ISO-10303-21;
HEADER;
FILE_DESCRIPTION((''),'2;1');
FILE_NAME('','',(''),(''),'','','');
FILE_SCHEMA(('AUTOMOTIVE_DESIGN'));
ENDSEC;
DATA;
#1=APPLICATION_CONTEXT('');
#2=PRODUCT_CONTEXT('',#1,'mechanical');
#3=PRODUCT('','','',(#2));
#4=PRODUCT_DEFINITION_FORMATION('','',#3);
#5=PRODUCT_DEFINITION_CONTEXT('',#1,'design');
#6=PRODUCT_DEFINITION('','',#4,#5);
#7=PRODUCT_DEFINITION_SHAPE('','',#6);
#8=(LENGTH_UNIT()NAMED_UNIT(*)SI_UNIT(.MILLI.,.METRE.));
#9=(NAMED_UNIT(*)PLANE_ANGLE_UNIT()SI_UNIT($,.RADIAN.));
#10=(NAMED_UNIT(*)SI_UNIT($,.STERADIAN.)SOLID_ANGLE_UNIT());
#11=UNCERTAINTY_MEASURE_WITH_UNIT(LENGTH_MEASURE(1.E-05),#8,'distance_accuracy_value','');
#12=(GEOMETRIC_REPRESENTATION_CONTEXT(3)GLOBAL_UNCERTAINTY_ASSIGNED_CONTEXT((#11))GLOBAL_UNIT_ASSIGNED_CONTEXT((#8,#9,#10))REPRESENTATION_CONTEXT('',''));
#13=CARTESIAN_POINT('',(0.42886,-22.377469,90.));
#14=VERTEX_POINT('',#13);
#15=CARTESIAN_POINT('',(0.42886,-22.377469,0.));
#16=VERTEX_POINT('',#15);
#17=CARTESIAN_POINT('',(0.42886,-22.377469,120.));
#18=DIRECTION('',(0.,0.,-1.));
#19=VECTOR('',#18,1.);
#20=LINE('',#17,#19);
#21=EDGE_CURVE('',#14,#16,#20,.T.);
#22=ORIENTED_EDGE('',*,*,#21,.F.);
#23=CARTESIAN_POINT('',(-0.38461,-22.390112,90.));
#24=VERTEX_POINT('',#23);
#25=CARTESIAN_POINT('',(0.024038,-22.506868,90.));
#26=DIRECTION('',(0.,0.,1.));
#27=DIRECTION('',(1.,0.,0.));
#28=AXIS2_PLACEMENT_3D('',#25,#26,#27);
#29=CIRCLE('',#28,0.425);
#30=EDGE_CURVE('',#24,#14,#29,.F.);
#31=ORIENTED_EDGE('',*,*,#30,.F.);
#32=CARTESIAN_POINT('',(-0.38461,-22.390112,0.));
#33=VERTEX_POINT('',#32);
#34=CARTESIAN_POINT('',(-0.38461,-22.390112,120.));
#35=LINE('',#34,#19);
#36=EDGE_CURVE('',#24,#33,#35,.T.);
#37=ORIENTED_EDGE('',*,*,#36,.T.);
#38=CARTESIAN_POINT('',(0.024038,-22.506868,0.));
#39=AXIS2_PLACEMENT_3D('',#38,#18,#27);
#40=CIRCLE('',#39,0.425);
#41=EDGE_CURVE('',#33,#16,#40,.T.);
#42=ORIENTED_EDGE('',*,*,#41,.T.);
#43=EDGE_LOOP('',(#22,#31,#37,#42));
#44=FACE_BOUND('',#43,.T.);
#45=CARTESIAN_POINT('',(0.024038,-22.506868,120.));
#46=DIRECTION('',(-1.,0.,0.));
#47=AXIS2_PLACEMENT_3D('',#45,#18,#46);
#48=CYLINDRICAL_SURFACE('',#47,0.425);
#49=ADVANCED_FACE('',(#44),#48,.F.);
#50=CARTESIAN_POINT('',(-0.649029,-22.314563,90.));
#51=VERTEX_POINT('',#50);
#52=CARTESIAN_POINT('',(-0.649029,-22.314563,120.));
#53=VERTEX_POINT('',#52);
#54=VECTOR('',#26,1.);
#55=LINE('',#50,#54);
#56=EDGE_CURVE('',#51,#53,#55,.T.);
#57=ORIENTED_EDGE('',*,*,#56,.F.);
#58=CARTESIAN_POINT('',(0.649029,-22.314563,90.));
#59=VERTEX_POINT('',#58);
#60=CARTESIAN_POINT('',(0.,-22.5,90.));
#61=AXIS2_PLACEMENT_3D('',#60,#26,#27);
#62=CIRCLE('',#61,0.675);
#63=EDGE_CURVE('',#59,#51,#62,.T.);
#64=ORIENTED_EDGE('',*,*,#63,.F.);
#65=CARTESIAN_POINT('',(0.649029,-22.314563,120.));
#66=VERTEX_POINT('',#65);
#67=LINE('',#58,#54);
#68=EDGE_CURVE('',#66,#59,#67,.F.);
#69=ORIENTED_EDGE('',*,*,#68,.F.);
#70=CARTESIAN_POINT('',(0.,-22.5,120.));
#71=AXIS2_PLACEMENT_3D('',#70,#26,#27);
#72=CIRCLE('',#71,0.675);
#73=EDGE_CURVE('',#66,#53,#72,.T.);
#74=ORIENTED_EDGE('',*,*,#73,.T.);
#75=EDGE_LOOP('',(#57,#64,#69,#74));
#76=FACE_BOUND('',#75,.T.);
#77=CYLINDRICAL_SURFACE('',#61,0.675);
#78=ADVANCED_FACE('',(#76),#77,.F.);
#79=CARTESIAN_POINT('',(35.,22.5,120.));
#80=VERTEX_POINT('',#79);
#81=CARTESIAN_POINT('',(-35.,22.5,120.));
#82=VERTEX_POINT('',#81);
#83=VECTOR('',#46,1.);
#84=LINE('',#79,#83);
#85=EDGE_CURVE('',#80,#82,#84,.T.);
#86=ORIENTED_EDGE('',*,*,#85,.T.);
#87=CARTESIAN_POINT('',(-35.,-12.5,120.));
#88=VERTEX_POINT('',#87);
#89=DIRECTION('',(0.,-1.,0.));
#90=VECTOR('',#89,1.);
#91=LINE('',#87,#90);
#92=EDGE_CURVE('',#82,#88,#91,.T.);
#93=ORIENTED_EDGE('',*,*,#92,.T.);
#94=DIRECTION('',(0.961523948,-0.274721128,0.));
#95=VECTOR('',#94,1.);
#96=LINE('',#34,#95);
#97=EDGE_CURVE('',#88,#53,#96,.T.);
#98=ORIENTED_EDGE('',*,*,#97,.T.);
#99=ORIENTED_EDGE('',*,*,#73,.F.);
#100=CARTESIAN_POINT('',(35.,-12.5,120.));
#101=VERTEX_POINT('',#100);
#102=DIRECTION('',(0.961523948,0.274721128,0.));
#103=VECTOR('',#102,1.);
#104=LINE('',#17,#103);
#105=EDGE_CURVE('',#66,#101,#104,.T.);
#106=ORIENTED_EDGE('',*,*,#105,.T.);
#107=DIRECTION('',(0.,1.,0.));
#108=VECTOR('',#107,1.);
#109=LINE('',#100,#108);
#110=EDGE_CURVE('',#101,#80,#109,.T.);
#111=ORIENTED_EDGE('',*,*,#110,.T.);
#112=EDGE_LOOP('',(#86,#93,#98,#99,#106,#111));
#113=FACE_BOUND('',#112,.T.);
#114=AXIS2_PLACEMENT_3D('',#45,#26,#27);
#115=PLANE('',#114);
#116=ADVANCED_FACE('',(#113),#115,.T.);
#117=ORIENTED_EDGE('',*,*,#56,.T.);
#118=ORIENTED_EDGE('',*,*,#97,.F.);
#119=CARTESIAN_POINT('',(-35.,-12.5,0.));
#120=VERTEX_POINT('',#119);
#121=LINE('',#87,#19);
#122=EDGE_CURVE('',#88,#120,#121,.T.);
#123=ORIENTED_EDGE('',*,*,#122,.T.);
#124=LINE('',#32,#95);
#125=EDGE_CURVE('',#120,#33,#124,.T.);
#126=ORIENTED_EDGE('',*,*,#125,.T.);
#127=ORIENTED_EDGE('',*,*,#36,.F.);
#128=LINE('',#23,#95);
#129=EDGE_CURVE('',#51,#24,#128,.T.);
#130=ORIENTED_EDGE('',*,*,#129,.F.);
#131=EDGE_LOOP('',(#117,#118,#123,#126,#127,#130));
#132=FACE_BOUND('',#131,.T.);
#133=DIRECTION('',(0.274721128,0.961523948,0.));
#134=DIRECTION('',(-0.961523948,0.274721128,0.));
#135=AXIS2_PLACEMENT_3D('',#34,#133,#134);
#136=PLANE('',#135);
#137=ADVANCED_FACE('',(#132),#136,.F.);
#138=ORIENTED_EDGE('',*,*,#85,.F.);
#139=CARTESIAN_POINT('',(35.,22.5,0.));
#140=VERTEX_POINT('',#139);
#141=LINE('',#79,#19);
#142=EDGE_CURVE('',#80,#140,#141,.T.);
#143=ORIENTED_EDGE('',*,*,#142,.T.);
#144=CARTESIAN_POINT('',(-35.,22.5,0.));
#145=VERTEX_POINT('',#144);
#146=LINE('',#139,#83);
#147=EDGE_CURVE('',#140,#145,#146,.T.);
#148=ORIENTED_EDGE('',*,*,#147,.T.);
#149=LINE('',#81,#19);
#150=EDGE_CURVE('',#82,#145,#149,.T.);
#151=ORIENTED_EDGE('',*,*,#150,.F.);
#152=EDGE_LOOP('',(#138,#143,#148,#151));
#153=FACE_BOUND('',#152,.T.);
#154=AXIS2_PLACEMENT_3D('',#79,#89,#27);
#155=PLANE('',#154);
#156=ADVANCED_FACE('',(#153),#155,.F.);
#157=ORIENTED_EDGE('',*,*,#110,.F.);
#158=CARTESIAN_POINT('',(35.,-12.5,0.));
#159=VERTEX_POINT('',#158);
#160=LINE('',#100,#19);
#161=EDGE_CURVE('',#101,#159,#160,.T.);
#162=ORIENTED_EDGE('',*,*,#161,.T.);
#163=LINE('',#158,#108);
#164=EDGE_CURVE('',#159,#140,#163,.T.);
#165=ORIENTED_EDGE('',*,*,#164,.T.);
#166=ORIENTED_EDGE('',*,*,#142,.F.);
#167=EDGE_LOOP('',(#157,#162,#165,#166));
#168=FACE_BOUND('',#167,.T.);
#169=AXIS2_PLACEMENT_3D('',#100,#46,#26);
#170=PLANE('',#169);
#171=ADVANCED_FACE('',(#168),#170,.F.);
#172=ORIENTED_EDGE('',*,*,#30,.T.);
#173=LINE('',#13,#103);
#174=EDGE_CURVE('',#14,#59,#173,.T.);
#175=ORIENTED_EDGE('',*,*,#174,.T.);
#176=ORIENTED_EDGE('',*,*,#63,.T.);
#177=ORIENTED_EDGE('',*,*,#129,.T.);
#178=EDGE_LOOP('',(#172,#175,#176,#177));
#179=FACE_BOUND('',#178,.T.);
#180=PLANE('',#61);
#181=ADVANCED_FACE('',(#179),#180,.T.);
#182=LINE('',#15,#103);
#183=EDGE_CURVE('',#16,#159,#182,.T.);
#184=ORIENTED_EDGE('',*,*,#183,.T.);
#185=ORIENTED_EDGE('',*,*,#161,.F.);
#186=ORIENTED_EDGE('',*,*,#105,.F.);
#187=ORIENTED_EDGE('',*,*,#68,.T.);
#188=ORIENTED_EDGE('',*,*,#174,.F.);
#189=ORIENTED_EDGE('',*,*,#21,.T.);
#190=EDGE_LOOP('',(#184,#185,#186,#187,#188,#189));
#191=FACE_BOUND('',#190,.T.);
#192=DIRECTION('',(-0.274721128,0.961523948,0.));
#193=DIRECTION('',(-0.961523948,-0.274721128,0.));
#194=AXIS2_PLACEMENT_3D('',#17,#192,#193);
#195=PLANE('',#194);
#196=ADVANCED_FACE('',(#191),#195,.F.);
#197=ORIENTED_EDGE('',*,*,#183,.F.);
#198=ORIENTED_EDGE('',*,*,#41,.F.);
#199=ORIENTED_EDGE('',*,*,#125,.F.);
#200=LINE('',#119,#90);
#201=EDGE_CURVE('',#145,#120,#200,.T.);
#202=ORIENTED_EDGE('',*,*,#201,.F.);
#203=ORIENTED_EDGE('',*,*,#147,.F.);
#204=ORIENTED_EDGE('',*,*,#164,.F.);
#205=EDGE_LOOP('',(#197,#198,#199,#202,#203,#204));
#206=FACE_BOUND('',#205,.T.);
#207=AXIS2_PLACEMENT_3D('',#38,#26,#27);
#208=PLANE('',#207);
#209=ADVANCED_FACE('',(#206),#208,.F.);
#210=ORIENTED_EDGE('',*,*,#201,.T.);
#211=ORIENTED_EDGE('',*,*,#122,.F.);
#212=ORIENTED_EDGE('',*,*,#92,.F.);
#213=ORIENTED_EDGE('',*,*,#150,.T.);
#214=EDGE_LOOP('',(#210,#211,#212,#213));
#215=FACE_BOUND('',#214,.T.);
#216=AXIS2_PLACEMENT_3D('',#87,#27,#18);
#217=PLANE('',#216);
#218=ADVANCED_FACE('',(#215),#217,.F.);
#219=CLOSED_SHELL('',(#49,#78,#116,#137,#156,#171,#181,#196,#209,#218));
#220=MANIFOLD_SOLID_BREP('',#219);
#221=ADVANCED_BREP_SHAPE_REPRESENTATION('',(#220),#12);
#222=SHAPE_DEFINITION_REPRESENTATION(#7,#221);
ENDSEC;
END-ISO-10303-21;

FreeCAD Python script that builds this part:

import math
import FreeCAD as App
import Part
import Sketcher
from FreeCAD import Vector
Q = App.Units.Quantity

doc = App.newDocument("Part")
params = doc.addObject("Spreadsheet::Sheet", "Params")
for row, (alias, value) in enumerate([
    ("sketch1_width", "70 mm"),
    ("sketch1_height", "35 mm"),
    ("pad1_length", "120 mm"),
    ("sketch2_diameter", "1.35 mm"),
    ("pocket1_length", "30 mm"),
], start=1):
    params.set(f"A{row}", alias)
    params.set(f"B{row}", "=" + value)
    params.setAlias(f"B{row}", alias)

body = doc.addObject("PartDesign::Body", "Body")

sketch1 = doc.addObject("Sketcher::SketchObject", "Sketch")
body.addObject(sketch1)
sketch1.AttachmentSupport = (doc.XY_Plane, [""])
sketch1.MapMode = "FlatFace"
sketch1.addGeometry(Part.LineSegment(Vector(35, -12.5, 0), Vector(35, 22.5, 0)), False)
sketch1.addGeometry(Part.LineSegment(Vector(35, 22.5, 0), Vector(-35, 22.5, 0)), False)
sketch1.addGeometry(Part.LineSegment(Vector(-35, 22.5, 0), Vector(-35, -12.5, 0)), False)
sketch1.addGeometry(Part.LineSegment(Vector(-35, -12.5, 0), Vector(-0.38, -22.39, 0)), False)
sketch1.addGeometry(Part.ArcOfCircle(Part.Circle(Vector(0.02, -22.51, 0), Vector(0, 0, 1), 0.42), math.radians(18), math.radians(164)), False)
sketch1.addGeometry(Part.LineSegment(Vector(0.43, -22.38, 0), Vector(35, -12.5, 0)), False)
sketch1.addConstraint(Sketcher.Constraint("Coincident", 0, 2, 1, 1))
sketch1.addConstraint(Sketcher.Constraint("Coincident", 1, 2, 2, 1))
sketch1.addConstraint(Sketcher.Constraint("Coincident", 2, 2, 3, 1))
sketch1.addConstraint(Sketcher.Constraint("Coincident", 3, 2, 4, 2))
sketch1.addConstraint(Sketcher.Constraint("Coincident", 4, 1, 5, 1))
sketch1.addConstraint(Sketcher.Constraint("Coincident", 5, 2, 0, 1))
sketch1.addConstraint(Sketcher.Constraint("Vertical", 0))
sketch1.addConstraint(Sketcher.Constraint("Horizontal", 1))
sketch1.addConstraint(Sketcher.Constraint("Vertical", 2))
sketch1.addConstraint(Sketcher.Constraint("Symmetric", 2, 2, 5, 2, -2))
sketch1.addConstraint(Sketcher.Constraint("DistanceX", 1, 2, 1, 1, Q("70 mm")))
sketch1.addConstraint(Sketcher.Constraint("DistanceY", 0, 1, 0, 2, Q("35 mm")))
sketch1.addConstraint(Sketcher.Constraint("Radius", 4, Q("0.425 mm")))
sketch1.addConstraint(Sketcher.Constraint("DistanceY", -1, 1, 0, 2, Q("22.5 mm")))
sketch1.addConstraint(Sketcher.Constraint("DistanceY", 4, 3, 4, 1, Q("0.129399 mm")))
sketch1.addConstraint(Sketcher.Constraint("Distance", 3, Q("36.000549 mm")))
sketch1.addConstraint(Sketcher.Constraint("Distance", 5, Q("35.954528 mm")))
sketch1.addConstraint(Sketcher.Constraint("DistanceX", 3, 2, -1, 1, Q("0.38461 mm")))
sketch1.setExpression("Constraints[10]", "Params.sketch1_width")
sketch1.setExpression("Constraints[11]", "Params.sketch1_height")
pad1 = doc.addObject("PartDesign::Pad", "Pad")
body.addObject(pad1)
pad1.Profile = sketch1
pad1.setExpression("Length", "Params.pad1_length")

sketch2 = doc.addObject("Sketcher::SketchObject", "Sketch001")
body.addObject(sketch2)
sketch2.AttachmentSupport = (doc.XY_Plane, [""])
sketch2.MapMode = "FlatFace"
sketch2.AttachmentOffset = App.Placement(Vector(0, 0, 120), App.Rotation())
sketch2.addGeometry(Part.Circle(Vector(0, -22.5, 0), Vector(0, 0, 1), 0.7), False)
sketch2.addConstraint(Sketcher.Constraint("PointOnObject", 0, 3, -2))
sketch2.addConstraint(Sketcher.Constraint("Diameter", 0, Q("1.35 mm")))
sketch2.addConstraint(Sketcher.Constraint("DistanceY", 0, 3, -1, 1, Q("22.5 mm")))
sketch2.setExpression("Constraints[1]", "Params.sketch2_diameter")
pocket1 = doc.addObject("PartDesign::Pocket", "Pocket")
body.addObject(pocket1)
pocket1.Profile = sketch2
pocket1.setExpression("Length", "Params.pocket1_length")

doc.recompute()
